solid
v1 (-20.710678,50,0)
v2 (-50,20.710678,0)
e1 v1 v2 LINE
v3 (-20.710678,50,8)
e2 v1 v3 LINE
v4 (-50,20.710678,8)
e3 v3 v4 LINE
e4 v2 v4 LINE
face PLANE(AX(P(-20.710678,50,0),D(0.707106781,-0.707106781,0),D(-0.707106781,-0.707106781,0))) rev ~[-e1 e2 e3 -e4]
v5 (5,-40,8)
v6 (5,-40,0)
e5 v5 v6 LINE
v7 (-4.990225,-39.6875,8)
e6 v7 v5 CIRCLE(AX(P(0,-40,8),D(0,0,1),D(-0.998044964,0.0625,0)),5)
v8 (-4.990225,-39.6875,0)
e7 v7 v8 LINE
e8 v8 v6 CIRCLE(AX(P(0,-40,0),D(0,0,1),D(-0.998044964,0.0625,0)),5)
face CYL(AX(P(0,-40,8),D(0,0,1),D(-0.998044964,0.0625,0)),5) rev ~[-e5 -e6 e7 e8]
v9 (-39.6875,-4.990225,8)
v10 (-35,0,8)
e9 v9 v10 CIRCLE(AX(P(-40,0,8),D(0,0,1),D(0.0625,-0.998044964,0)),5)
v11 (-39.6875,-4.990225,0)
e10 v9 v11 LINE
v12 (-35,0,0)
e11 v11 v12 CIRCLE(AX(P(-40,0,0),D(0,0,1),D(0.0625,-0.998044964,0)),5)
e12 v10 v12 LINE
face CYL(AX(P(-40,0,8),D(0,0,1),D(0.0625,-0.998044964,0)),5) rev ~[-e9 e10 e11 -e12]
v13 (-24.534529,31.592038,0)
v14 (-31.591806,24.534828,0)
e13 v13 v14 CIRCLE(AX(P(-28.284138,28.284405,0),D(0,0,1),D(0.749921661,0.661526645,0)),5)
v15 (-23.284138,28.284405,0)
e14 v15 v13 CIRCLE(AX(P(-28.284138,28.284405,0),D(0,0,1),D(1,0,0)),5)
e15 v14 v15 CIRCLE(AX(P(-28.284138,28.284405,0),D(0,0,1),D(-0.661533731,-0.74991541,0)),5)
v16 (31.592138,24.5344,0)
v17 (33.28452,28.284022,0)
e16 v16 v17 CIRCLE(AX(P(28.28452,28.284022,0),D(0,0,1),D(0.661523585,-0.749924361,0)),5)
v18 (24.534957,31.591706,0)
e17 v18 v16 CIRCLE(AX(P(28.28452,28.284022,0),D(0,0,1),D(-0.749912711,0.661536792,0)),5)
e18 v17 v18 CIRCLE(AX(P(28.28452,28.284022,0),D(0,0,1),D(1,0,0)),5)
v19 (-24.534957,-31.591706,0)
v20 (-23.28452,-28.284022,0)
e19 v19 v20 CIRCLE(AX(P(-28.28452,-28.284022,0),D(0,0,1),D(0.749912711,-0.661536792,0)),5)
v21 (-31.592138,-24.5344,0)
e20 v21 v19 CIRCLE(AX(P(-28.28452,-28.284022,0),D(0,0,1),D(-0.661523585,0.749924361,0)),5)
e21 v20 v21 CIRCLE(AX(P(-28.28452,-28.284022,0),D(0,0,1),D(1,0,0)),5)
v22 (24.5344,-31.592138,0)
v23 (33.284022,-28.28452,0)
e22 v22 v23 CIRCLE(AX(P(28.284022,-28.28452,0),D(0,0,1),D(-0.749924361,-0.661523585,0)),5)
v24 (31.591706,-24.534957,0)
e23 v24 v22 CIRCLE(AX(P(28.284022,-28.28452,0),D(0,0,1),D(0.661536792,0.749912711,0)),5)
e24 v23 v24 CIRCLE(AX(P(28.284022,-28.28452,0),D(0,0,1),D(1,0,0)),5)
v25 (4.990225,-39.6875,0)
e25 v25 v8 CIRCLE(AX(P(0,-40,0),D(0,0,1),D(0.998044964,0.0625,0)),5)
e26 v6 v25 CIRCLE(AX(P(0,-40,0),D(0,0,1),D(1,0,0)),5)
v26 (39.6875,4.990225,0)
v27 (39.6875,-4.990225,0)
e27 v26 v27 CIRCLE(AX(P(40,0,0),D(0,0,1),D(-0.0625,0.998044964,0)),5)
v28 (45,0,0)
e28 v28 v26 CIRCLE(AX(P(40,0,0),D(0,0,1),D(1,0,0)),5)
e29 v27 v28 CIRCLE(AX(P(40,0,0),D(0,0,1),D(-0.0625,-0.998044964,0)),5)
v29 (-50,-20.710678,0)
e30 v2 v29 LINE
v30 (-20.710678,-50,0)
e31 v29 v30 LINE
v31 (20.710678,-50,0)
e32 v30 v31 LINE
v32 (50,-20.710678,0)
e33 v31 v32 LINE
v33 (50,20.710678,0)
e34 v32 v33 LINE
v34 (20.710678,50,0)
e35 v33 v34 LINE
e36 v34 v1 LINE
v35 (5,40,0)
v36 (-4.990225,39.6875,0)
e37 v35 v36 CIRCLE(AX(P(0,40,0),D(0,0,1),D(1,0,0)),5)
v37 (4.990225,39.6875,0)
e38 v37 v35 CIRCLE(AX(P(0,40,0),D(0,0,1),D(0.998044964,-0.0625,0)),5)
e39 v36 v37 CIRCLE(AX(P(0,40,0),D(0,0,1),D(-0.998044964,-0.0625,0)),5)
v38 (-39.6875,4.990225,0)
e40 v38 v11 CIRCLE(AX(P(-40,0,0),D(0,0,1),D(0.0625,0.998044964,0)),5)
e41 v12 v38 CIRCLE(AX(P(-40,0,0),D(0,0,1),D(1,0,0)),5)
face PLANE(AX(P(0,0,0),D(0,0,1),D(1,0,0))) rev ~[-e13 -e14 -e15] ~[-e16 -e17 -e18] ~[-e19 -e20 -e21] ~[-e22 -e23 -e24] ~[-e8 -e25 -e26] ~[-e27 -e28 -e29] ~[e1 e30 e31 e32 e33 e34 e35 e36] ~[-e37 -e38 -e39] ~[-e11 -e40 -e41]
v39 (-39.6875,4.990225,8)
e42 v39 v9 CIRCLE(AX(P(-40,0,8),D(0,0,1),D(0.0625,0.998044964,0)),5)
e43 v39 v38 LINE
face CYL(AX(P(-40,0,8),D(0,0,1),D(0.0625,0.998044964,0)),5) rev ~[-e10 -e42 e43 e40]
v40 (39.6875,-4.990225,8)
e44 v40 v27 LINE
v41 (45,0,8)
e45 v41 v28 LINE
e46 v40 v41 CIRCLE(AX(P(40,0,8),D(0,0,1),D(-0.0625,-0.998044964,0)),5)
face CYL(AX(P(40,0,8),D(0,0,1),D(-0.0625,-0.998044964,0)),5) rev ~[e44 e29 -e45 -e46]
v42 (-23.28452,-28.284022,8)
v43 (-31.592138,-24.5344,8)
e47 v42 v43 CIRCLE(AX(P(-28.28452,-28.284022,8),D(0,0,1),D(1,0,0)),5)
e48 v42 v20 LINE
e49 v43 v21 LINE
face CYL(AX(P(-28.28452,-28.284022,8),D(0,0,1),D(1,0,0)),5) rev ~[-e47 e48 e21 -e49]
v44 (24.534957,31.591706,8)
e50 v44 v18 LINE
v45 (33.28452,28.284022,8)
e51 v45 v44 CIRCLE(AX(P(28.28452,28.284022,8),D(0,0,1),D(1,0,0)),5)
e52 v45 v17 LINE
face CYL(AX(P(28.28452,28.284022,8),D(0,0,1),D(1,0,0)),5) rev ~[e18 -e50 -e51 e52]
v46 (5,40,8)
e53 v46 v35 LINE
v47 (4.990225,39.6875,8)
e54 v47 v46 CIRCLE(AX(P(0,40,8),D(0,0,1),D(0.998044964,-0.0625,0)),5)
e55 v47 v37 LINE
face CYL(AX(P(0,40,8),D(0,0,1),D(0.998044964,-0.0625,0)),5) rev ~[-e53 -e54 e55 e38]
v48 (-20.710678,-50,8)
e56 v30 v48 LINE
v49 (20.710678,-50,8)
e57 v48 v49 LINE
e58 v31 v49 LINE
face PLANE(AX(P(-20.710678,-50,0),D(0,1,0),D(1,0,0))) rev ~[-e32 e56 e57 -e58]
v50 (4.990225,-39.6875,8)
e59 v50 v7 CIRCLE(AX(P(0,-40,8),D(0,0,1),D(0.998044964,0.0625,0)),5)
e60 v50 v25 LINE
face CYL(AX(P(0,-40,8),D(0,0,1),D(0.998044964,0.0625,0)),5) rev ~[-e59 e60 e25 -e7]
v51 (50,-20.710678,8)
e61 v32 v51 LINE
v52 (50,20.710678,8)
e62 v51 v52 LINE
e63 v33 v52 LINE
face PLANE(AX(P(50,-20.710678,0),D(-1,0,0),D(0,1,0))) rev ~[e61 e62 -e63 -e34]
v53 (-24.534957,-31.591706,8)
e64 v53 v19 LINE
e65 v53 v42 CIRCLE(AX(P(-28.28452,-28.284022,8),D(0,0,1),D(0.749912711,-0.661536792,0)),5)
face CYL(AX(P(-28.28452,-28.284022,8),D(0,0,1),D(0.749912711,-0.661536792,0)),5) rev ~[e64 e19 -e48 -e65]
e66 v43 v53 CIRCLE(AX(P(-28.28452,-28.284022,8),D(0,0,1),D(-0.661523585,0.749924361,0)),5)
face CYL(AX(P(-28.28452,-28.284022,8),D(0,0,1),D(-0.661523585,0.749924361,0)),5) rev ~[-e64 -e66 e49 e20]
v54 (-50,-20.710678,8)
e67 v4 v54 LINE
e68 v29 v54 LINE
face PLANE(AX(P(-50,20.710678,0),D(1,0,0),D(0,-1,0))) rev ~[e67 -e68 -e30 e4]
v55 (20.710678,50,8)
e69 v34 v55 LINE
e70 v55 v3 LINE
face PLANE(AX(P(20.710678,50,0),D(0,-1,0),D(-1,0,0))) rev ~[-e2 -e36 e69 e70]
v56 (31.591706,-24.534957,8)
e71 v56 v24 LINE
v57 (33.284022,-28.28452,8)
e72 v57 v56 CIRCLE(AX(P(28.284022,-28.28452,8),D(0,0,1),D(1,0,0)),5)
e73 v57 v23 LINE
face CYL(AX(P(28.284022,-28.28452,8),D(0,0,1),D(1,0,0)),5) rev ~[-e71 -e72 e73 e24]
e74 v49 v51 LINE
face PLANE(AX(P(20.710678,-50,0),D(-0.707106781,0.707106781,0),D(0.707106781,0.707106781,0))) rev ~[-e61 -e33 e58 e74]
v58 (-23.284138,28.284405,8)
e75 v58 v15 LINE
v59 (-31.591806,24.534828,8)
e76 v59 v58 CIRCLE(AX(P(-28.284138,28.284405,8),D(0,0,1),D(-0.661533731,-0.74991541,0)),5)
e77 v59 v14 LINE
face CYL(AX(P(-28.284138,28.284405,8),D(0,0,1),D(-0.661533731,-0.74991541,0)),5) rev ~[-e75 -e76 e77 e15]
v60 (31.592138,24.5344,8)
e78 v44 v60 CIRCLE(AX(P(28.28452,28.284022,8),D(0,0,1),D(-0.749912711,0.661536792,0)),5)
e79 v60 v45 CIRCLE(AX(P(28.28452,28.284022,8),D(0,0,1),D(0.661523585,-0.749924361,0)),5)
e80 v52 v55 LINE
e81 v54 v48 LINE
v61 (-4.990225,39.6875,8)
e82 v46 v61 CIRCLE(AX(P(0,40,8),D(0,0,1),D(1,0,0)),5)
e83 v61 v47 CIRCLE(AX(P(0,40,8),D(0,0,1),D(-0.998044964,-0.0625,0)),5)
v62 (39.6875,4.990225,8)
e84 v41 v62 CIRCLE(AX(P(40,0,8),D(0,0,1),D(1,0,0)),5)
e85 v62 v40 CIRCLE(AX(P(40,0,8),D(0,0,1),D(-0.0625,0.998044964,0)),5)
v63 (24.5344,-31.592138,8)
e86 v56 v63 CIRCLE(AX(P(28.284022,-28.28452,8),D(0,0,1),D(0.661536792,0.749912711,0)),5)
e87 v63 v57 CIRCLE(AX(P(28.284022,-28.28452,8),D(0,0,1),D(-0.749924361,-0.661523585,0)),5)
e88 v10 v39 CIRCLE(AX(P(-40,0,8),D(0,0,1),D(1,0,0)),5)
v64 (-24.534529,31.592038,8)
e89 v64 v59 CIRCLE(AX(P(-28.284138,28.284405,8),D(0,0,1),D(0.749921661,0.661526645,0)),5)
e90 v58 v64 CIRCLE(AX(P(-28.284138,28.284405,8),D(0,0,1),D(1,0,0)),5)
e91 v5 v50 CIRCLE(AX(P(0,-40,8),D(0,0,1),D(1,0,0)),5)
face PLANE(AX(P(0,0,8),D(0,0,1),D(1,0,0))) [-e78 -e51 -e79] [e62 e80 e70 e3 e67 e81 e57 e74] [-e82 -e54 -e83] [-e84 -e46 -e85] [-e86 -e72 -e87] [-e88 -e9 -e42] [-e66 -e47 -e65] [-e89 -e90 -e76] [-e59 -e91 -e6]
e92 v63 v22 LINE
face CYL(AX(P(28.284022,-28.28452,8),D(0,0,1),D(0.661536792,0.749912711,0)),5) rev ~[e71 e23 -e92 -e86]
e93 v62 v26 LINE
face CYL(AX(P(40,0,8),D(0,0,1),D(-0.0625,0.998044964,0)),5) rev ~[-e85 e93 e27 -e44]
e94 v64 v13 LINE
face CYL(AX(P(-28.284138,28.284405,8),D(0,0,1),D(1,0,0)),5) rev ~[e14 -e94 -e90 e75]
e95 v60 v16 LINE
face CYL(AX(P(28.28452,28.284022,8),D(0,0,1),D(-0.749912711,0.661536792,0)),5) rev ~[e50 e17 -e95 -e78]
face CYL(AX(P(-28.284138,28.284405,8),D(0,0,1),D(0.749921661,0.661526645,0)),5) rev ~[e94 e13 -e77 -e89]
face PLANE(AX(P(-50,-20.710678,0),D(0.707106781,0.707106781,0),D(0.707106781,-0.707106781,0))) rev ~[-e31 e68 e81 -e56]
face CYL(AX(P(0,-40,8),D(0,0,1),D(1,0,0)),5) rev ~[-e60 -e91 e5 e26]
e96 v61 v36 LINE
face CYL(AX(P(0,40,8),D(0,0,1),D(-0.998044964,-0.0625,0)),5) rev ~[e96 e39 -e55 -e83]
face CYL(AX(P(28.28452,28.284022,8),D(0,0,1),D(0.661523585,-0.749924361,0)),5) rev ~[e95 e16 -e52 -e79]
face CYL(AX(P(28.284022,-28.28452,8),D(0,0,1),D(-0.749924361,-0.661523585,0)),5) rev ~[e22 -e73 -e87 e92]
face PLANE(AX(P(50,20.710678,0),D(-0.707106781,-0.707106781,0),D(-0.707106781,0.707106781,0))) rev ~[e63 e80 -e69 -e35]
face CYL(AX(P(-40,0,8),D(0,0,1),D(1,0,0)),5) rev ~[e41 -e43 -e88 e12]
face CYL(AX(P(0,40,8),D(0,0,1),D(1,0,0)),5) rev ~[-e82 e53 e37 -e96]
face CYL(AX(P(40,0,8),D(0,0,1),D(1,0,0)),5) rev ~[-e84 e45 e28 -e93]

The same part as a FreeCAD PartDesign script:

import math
import FreeCAD as App
import Part
import Sketcher
from FreeCAD import Vector


def add_polygon(sketch, points):
    """Adds a closed chain of lines whose ends are joined by coincident constraints."""
    first, n = sketch.GeometryCount, len(points)
    for a, b in zip(points, points[1:] + points[:1]):
        sketch.addGeometry(Part.LineSegment(App.Vector(*a, 0), App.Vector(*b, 0)), False)
    for i in range(n):
        sketch.addConstraint(Sketcher.Constraint("Coincident", first + i, 2, first + (i + 1) % n, 1))

doc = App.newDocument("Part")
params = doc.addObject("Spreadsheet::Sheet", "Params")
for row, (alias, value) in enumerate([
    ("pad1_length", "8 mm"),
    ("sketch2_radius", "5 mm"),
    ("pocket1_length", "25 mm"),
], start=1):
    params.set(f"A{row}", alias)
    params.set(f"B{row}", "=" + value)
    params.setAlias(f"B{row}", alias)

body = doc.addObject("PartDesign::Body", "Body")

# Sketch on XY plane
sketch1 = doc.addObject("Sketcher::SketchObject", "Sketch")
body.addObject(sketch1)
sketch1.AttachmentSupport = (doc.XY_Plane, [""])
sketch1.MapMode = "FlatFace"
add_polygon(sketch1, [(21, -50), (50, -21), (50, 21), (21, 50), (-21, 50), (-50, 21), (-50, -21), (-21, -50)])  # lines 0-7
sketch1.addConstraint([
    Sketcher.Constraint("Vertical", 1),
    Sketcher.Constraint("Horizontal", 3),
    Sketcher.Constraint("Vertical", 5),
    Sketcher.Constraint("Horizontal", 7),
    Sketcher.Constraint("Symmetric", 0, 2, 4, 2, -1, 1),
    Sketcher.Constraint("Symmetric", 2, 2, 6, 2, -1, 1),
    Sketcher.Constraint("Perpendicular", 0, 2),
    Sketcher.Constraint("Perpendicular", 2, 4),
    Sketcher.Constraint("Perpendicular", 4, 6),
    Sketcher.Constraint("Horizontal", 1, 2, 4, 2),
    Sketcher.Constraint("Vertical", 3, 2, 6, 2),
    Sketcher.Constraint("Equal", 7, 1),
    Sketcher.Constraint("DistanceX", -1, 1, 0, 2, 50.0),
    Sketcher.Constraint("DistanceX", 3, 2, 3, 1, 41.421356),
])
pad1 = doc.addObject("PartDesign::Pad", "Pad")
body.addObject(pad1)
pad1.Profile = sketch1
pad1.setExpression("Length", "Params.pad1_length")

# Sketch on XY plane
sketch2 = doc.addObject("Sketcher::SketchObject", "Sketch001")
body.addObject(sketch2)
sketch2.AttachmentSupport = (doc.XY_Plane, [""])
sketch2.MapMode = "FlatFace"
sketch2.AttachmentOffset = App.Placement(Vector(0, 0, 8), App.Rotation())
sketch2.addGeometry([
    Part.ArcOfCircle(Part.Circle(Vector(28.28, 28.28, 0), Vector(0, 0, 1), 5), math.radians(139), math.radians(311)),  # 0
    Part.ArcOfCircle(Part.Circle(Vector(28.28, 28.28, 0), Vector(0, 0, 1), 5), math.radians(-49), math.radians(0)),  # 1
    Part.ArcOfCircle(Part.Circle(Vector(28.28, 28.28, 0), Vector(0, 0, 1), 5), math.radians(0), math.radians(139)),  # 2
    Part.ArcOfCircle(Part.Circle(Vector(0, 40, 0), Vector(0, 0, 1), 5), math.radians(-176), math.radians(-4)),  # 3
    Part.ArcOfCircle(Part.Circle(Vector(0, 40, 0), Vector(0, 0, 1), 5), math.radians(-3.58), math.radians(0)),  # 4
    Part.ArcOfCircle(Part.Circle(Vector(0, 40, 0), Vector(0, 0, 1), 5), math.radians(0), math.radians(184)),  # 5
    Part.ArcOfCircle(Part.Circle(Vector(-28.28, 28.28, 0), Vector(0, 0, 1), 5), math.radians(41), math.radians(229)),  # 6
    Part.ArcOfCircle(Part.Circle(Vector(-28.28, 28.28, 0), Vector(0, 0, 1), 5), math.radians(-131), math.radians(0)),  # 7
    Part.ArcOfCircle(Part.Circle(Vector(-28.28, 28.28, 0), Vector(0, 0, 1), 5), math.radians(0), math.radians(41)),  # 8
    Part.ArcOfCircle(Part.Circle(Vector(-40, 0, 0), Vector(0, 0, 1), 5), math.radians(86), math.radians(274)),  # 9
    Part.ArcOfCircle(Part.Circle(Vector(-40, 0, 0), Vector(0, 0, 1), 5), math.radians(-86), math.radians(0)),  # 10
    Part.ArcOfCircle(Part.Circle(Vector(-40, 0, 0), Vector(0, 0, 1), 5), math.radians(0), math.radians(86)),  # 11
    Part.ArcOfCircle(Part.Circle(Vector(-28.28, -28.28, 0), Vector(0, 0, 1), 5), math.radians(131), math.radians(319)),  # 12
    Part.ArcOfCircle(Part.Circle(Vector(-28.28, -28.28, 0), Vector(0, 0, 1), 5), math.radians(-41), math.radians(0)),  # 13
    Part.ArcOfCircle(Part.Circle(Vector(-28.28, -28.28, 0), Vector(0, 0, 1), 5), math.radians(0), math.radians(131)),  # 14
    Part.ArcOfCircle(Part.Circle(Vector(0, -40, 0), Vector(0, 0, 1), 5), math.radians(4), math.radians(176)),  # 15
    Part.ArcOfCircle(Part.Circle(Vector(0, -40, 0), Vector(0, 0, 1), 5), math.radians(176), math.radians(360)),  # 16
    Part.ArcOfCircle(Part.Circle(Vector(0, -40, 0), Vector(0, 0, 1), 5), math.radians(0), math.radians(3.58)),  # 17
    Part.ArcOfCircle(Part.Circle(Vector(28.28, -28.28, 0), Vector(0, 0, 1), 5), math.radians(49), math.radians(221)),  # 18
    Part.ArcOfCircle(Part.Circle(Vector(28.28, -28.28, 0), Vector(0, 0, 1), 5), math.radians(-139), math.radians(0)),  # 19
    Part.ArcOfCircle(Part.Circle(Vector(28.28, -28.28, 0), Vector(0, 0, 1), 5), math.radians(0), math.radians(49)),  # 20
    Part.ArcOfCircle(Part.Circle(Vector(40, 0, 0), Vector(0, 0, 1), 5), math.radians(94), math.radians(266)),  # 21
    Part.ArcOfCircle(Part.Circle(Vector(40, 0, 0), Vector(0, 0, 1), 5), math.radians(-94), math.radians(0)),  # 22
    Part.ArcOfCircle(Part.Circle(Vector(40, 0, 0), Vector(0, 0, 1), 5), math.radians(0), math.radians(94)),  # 23
], False)
sketch2.addConstraint([
    Sketcher.Constraint("Tangent", 0, 2, 1, 1),
    Sketcher.Constraint("Tangent", 1, 2, 2, 1),
    Sketcher.Constraint("Tangent", 2, 2, 0, 1),
    Sketcher.Constraint("Tangent", 3, 2, 4, 1),
    Sketcher.Constraint("Tangent", 4, 2, 5, 1),
    Sketcher.Constraint("Tangent", 5, 2, 3, 1),
    Sketcher.Constraint("Tangent", 6, 2, 7, 1),
    Sketcher.Constraint("Tangent", 7, 2, 8, 1),
    Sketcher.Constraint("Tangent", 8, 2, 6, 1),
    Sketcher.Constraint("Tangent", 9, 2, 10, 1),
    Sketcher.Constraint("Tangent", 10, 2, 11, 1),
    Sketcher.Constraint("Tangent", 11, 2, 9, 1),
    Sketcher.Constraint("Tangent", 12, 2, 13, 1),
    Sketcher.Constraint("Tangent", 13, 2, 14, 1),
    Sketcher.Constraint("Tangent", 14, 2, 12, 1),
    Sketcher.Constraint("Tangent", 15, 2, 16, 1),
    Sketcher.Constraint("Tangent", 16, 2, 17, 1),
    Sketcher.Constraint("Tangent", 17, 2, 15, 1),
    Sketcher.Constraint("Tangent", 18, 2, 19, 1),
    Sketcher.Constraint("Tangent", 19, 2, 20, 1),
    Sketcher.Constraint("Tangent", 20, 2, 18, 1),
    Sketcher.Constraint("Tangent", 21, 2, 22, 1),
    Sketcher.Constraint("Tangent", 22, 2, 23, 1),
    Sketcher.Constraint("Tangent", 23, 2, 21, 1),
    Sketcher.Constraint("Equal", 2, 3),
    Sketcher.Constraint("Equal", 5, 6),
    Sketcher.Constraint("Equal", 8, 9),
    Sketcher.Constraint("Equal", 11, 12),
    Sketcher.Constraint("Equal", 14, 15),
    Sketcher.Constraint("Equal", 17, 18),
    Sketcher.Constraint("Equal", 20, 21),
    Sketcher.Constraint("Symmetric", 0, 3, 12, 3, -1, 1),
    Sketcher.Constraint("Symmetric", 3, 3, 15, 3, -1, 1),
    Sketcher.Constraint("Symmetric", 9, 3, 21, 3, -1, 1),
    Sketcher.Constraint("Symmetric", 3, 2, 5, 2, -2),
    Sketcher.Constraint("Symmetric", 9, 2, 21, 2, -2),
    Sketcher.Constraint("PointOnObject", 10, 2, -1),
    Sketcher.Constraint("PointOnObject", 22, 2, -1),
    Sketcher.Constraint("Horizontal", 2, 3, 1, 2),
    Sketcher.Constraint("Horizontal", 5, 3, 4, 2),
    Sketcher.Constraint("Horizontal", 8, 3, 7, 2),
    Sketcher.Constraint("Horizontal", 14, 3, 13, 2),
    Sketcher.Constraint("Horizontal", 17, 3, 16, 2),
    Sketcher.Constraint("Horizontal", 15, 2, 17, 2),
    Sketcher.Constraint("Horizontal", 20, 3, 19, 2),
    Sketcher.Constraint("Horizontal", 11, 2, 23, 2),
    Sketcher.Constraint("Vertical", 9, 2, 11, 2),
    Sketcher.Constraint("Vertical", 5, 2, 15, 2),
    Sketcher.Constraint("Radius", 0, 5.0),
    Sketcher.Constraint("DistanceY", -1, 1, 3, 3, 40.0),
    Sketcher.Constraint("DistanceX", 9, 3, -1, 1, 40.0),
    Sketcher.Constraint("DistanceY", -1, 1, 0, 2, 24.5344),
    Sketcher.Constraint("DistanceY", -1, 1, 3, 2, 39.6875),
    Sketcher.Constraint("DistanceX", 9, 2, -1, 1, 39.6875),
    Sketcher.Constraint("DistanceY", 14, 2, -1, 1, 24.5344),
    Sketcher.Constraint("DistanceX", -1, 1, 18, 2, 24.5344),
    Sketcher.Constraint("DistanceX", 18, 3, 1, 3, 0.000498),
    Sketcher.Constraint("DistanceY", 19, 3, 13, 3, 0.000498),
    Sketcher.Constraint("DistanceX", -1, 1, 0, 3, 28.28452),
    Sketcher.Constraint("DistanceY", 18, 3, -1, 1, 28.28452),
    Sketcher.Constraint("DistanceX", 8, 2, -1, 1, 24.534529),
    Sketcher.Constraint("DistanceY", -1, 1, 8, 2, 31.592038),
    Sketcher.Constraint("DistanceX", 2, 2, 0, 2, 7.057181),
    Sketcher.Constraint("DistanceX", 6, 2, 8, 3, 3.307669),
    Sketcher.Constraint("DistanceX", 8, 2, 7, 2, 1.250392),
    Sketcher.Constraint("DistanceX", 14, 2, 12, 2, 7.057181),
    Sketcher.Constraint("DistanceY", 18, 2, 20, 2, 7.057181),
])
sketch2.setExpression("Constraints[48]", "Params.sketch2_radius")
pocket1 = doc.addObject("PartDesign::Pocket", "Pocket")
body.addObject(pocket1)
pocket1.Profile = sketch2
pocket1.setExpression("Length", "Params.pocket1_length")

doc.recompute()
